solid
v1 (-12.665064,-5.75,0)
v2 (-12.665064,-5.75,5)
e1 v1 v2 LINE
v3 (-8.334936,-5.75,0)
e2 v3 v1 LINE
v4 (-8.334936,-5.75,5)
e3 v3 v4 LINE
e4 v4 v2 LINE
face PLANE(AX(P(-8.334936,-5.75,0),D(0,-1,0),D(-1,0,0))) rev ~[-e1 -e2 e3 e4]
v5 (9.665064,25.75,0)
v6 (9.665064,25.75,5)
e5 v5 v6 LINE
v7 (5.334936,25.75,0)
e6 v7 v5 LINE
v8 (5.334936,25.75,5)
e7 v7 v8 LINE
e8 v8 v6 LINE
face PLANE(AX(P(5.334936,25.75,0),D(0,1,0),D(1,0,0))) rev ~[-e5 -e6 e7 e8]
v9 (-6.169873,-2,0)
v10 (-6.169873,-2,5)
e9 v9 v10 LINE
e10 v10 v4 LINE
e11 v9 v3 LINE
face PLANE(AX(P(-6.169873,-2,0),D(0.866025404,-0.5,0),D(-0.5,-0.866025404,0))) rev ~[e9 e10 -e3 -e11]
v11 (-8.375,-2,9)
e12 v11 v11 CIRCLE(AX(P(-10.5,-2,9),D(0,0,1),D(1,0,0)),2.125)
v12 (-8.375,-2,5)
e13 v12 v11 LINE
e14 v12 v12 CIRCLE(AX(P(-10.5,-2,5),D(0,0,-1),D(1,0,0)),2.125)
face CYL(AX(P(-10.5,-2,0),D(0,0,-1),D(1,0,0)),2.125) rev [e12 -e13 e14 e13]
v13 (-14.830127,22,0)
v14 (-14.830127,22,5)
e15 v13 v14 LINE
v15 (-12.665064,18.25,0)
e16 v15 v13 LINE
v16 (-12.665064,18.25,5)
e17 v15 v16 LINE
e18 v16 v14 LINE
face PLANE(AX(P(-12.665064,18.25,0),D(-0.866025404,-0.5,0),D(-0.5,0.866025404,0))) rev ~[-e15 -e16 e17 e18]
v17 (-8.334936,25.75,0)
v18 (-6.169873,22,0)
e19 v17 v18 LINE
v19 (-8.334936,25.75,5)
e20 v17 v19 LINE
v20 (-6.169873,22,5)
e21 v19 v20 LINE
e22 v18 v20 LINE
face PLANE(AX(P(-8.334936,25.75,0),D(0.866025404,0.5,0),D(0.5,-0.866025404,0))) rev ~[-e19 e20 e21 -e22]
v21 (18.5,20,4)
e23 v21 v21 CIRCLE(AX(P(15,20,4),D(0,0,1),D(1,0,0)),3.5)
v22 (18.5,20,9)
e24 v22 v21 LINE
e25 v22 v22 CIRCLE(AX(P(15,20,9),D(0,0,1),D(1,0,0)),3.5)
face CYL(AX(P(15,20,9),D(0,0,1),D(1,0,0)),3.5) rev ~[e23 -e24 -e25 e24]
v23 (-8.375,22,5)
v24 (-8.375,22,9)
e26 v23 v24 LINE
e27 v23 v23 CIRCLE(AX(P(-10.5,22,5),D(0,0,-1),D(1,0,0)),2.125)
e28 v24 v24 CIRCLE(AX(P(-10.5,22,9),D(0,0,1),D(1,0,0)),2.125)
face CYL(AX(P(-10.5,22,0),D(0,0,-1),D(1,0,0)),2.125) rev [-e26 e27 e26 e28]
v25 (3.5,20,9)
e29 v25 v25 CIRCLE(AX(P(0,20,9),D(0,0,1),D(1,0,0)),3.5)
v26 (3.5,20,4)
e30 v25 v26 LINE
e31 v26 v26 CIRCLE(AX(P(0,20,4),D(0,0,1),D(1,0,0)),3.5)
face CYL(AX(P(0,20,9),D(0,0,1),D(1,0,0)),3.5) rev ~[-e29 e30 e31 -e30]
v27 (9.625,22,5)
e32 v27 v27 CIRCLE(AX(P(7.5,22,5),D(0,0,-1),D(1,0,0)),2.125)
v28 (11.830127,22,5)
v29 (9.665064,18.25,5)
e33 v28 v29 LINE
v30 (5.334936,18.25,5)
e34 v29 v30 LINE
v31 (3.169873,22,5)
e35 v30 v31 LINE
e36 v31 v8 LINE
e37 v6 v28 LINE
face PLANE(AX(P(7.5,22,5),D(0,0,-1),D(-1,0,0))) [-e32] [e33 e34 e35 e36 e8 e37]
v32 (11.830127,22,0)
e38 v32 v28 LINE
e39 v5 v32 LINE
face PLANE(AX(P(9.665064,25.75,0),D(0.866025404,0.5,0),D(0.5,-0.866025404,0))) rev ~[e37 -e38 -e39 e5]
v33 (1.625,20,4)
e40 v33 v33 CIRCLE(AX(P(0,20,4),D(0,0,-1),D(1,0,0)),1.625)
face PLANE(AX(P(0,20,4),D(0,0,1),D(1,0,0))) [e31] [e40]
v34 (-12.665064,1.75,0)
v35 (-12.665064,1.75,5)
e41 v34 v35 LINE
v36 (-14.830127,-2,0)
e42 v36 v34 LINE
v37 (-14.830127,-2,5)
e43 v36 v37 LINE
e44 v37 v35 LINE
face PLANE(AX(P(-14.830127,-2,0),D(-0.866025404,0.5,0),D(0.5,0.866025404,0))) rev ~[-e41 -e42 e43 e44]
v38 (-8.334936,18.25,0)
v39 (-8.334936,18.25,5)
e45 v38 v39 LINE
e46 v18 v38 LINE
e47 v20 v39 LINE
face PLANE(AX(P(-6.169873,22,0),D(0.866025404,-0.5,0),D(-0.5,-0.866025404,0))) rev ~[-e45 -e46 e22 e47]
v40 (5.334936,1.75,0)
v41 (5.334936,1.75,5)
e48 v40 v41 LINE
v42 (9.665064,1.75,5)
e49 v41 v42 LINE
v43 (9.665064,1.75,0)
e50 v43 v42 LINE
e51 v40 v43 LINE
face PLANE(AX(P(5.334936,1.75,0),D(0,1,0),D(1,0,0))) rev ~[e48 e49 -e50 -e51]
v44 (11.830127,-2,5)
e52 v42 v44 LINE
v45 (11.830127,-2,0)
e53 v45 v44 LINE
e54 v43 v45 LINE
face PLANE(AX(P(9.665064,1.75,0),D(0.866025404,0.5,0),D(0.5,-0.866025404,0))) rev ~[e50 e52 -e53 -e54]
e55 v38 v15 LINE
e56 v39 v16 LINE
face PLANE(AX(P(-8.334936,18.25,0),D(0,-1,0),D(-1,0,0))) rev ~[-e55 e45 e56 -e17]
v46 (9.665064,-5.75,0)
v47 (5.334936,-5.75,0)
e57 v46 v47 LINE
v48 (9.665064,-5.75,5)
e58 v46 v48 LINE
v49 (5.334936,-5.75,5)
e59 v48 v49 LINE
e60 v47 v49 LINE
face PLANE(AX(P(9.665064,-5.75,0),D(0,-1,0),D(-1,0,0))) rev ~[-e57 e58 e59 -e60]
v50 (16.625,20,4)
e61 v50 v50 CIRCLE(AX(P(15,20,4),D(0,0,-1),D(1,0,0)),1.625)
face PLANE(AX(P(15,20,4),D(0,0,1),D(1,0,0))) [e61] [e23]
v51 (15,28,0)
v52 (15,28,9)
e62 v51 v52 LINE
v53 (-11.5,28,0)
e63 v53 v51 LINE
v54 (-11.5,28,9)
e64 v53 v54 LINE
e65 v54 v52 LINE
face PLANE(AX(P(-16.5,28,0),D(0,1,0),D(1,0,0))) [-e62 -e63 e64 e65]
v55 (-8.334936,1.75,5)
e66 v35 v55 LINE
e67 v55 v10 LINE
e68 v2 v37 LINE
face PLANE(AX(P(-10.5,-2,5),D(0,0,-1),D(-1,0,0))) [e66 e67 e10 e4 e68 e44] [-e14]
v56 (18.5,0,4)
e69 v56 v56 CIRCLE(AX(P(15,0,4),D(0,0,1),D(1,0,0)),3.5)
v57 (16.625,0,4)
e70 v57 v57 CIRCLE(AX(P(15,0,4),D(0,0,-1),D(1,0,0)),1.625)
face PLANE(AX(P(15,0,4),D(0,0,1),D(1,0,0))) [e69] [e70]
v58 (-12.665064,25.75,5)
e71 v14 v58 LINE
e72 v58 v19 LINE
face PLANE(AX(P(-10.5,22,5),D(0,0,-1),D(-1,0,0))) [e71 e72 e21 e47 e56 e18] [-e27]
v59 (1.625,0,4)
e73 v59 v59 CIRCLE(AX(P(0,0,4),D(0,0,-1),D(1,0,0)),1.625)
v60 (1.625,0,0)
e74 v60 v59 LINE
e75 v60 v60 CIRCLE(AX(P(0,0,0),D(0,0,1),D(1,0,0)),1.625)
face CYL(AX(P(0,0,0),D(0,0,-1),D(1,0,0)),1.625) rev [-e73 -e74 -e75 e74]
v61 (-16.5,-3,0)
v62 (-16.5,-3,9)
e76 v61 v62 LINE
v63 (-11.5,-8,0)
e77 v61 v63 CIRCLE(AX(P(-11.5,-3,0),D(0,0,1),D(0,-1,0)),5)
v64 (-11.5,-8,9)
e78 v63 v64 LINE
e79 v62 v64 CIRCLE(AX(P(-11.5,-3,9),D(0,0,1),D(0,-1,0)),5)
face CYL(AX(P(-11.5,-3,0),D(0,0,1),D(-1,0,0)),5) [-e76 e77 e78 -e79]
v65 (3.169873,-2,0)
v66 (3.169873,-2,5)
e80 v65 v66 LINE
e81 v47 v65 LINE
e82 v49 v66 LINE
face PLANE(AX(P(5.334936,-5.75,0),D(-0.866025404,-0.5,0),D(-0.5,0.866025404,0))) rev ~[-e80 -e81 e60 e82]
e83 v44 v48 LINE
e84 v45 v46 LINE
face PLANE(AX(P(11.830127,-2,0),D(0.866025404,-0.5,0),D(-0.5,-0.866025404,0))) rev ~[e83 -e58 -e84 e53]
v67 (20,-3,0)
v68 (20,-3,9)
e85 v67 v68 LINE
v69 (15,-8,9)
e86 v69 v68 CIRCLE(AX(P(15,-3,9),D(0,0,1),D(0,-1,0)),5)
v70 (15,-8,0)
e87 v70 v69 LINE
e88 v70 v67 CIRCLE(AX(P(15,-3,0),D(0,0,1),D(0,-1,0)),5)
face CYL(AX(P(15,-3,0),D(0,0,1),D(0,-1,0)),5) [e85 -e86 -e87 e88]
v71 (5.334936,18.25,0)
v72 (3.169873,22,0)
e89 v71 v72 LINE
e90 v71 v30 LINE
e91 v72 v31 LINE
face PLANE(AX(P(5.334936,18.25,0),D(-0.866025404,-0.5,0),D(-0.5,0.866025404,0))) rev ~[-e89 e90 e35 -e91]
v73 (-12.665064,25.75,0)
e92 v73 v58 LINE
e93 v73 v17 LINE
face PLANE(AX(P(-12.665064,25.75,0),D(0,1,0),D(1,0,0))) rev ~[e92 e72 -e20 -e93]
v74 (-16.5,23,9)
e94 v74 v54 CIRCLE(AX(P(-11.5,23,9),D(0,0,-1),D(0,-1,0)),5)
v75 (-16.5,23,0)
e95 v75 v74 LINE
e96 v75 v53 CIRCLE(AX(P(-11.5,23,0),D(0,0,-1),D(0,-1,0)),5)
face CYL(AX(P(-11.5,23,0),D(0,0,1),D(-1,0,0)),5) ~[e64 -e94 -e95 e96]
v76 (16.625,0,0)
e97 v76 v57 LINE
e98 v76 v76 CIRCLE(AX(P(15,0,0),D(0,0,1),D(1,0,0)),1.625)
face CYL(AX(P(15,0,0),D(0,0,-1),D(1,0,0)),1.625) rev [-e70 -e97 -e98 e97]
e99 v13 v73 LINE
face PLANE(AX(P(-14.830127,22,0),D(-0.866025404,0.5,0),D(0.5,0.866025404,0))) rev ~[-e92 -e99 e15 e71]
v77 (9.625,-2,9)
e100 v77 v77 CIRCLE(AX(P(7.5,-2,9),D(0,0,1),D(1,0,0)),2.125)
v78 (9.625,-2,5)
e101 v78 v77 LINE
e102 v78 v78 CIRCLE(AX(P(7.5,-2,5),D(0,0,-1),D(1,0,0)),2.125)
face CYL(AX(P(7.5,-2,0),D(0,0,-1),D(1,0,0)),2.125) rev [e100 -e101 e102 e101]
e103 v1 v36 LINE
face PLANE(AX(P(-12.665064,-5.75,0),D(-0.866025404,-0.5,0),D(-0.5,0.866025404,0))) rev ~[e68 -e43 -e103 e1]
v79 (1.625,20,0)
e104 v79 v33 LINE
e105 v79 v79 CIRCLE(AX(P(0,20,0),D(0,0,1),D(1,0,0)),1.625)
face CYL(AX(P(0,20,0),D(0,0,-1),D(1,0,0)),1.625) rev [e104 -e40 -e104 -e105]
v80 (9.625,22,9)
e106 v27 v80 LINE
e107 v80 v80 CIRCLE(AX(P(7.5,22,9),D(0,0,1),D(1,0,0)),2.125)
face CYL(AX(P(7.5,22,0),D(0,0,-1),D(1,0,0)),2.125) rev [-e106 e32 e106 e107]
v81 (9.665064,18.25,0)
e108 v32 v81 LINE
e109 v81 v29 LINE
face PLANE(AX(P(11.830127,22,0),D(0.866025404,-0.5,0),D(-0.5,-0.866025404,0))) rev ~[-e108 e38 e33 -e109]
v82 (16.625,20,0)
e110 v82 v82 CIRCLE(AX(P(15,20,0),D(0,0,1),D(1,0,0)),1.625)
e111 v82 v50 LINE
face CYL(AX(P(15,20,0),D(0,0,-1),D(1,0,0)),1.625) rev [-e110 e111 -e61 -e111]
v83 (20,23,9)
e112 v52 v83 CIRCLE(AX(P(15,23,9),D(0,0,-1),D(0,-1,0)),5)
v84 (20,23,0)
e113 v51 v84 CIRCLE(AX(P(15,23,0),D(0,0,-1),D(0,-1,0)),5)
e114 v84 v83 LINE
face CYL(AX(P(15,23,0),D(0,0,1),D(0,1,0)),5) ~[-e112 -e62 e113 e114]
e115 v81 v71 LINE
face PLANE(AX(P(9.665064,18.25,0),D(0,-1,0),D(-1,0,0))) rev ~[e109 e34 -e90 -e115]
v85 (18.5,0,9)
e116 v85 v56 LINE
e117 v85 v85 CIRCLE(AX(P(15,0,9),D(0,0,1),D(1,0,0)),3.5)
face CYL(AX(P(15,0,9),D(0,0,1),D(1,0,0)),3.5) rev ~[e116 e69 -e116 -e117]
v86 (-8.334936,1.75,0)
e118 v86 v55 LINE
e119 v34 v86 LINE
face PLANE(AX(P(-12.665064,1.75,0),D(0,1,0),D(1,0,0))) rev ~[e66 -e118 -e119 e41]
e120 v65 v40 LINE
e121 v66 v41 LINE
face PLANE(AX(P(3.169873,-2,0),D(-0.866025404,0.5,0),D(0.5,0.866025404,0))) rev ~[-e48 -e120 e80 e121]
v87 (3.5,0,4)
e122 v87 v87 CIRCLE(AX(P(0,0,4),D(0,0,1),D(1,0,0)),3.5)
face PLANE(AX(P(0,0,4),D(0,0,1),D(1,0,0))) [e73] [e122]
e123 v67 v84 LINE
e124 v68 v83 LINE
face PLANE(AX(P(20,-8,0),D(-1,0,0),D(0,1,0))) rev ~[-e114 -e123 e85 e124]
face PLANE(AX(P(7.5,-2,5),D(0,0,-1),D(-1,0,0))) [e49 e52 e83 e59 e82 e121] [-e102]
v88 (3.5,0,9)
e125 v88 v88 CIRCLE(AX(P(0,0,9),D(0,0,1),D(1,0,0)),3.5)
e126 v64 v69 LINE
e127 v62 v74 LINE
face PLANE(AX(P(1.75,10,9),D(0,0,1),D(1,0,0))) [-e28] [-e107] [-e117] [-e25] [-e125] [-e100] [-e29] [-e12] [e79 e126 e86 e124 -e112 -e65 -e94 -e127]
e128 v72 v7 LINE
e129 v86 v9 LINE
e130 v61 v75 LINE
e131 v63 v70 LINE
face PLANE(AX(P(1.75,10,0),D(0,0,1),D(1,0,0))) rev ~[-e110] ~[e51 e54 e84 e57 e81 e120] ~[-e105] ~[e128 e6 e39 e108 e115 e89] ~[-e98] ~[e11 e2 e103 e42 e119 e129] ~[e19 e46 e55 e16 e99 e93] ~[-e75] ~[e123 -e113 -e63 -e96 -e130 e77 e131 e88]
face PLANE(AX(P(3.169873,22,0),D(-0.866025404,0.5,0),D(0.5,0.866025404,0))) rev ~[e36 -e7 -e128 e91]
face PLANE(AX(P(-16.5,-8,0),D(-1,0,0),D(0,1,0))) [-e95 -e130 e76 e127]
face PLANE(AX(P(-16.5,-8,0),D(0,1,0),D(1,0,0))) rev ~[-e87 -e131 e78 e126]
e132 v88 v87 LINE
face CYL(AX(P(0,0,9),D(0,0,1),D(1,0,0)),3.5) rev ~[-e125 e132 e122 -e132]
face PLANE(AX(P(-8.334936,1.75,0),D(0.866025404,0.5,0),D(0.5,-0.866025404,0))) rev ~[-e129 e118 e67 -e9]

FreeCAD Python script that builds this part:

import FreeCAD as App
import Part
import Sketcher

V = App.Vector
Q = App.Units.Quantity


def edges_at(feature, points):
    """Names of the edges that pass closest to the given points."""
    edges = feature.Shape.Edges
    near = lambda p: min(range(len(edges)), key=lambda i: edges[i].distToShape(Part.Vertex(*p))[0])
    return sorted({f"Edge{near(p) + 1}" for p in points})

doc = App.newDocument("Part")
body = doc.addObject("PartDesign::Body", "Body")

sketch1 = body.newObject("Sketcher::SketchObject", "Sketch")
sketch1.AttachmentSupport = (doc.getObject("XY_Plane"), [""])
sketch1.MapMode = "FlatFace"
sketch1.addGeometry(Part.LineSegment(V(-16.5, 28, 0), V(-16.5, -8, 0)), False)
sketch1.addGeometry(Part.LineSegment(V(-16.5, -8, 0), V(20, -8, 0)), False)
sketch1.addGeometry(Part.LineSegment(V(20, -8, 0), V(20, 28, 0)), False)
sketch1.addGeometry(Part.LineSegment(V(20, 28, 0), V(-16.5, 28, 0)), False)
sketch1.addGeometry(Part.Circle(V(-10.5, -2, 0), V(0, 0, 1), 2.1), False)
sketch1.addGeometry(Part.Circle(V(0, 0, 0), V(0, 0, 1), 1.6), False)
sketch1.addGeometry(Part.Circle(V(7.5, -2, 0), V(0, 0, 1), 2.1), False)
sketch1.addGeometry(Part.Circle(V(15, 0, 0), V(0, 0, 1), 1.6), False)
sketch1.addGeometry(Part.Circle(V(-10.5, 22, 0), V(0, 0, 1), 2.1), False)
sketch1.addGeometry(Part.Circle(V(0, 20, 0), V(0, 0, 1), 1.6), False)
sketch1.addGeometry(Part.Circle(V(7.5, 22, 0), V(0, 0, 1), 2.1), False)
sketch1.addGeometry(Part.Circle(V(15, 20, 0), V(0, 0, 1), 1.6), False)
sketch1.addConstraint(Sketcher.Constraint("Coincident", 0, 2, 1, 1))
sketch1.addConstraint(Sketcher.Constraint("Coincident", 1, 2, 2, 1))
sketch1.addConstraint(Sketcher.Constraint("Coincident", 2, 2, 3, 1))
sketch1.addConstraint(Sketcher.Constraint("Coincident", 3, 2, 0, 1))
sketch1.addConstraint(Sketcher.Constraint("Vertical", 0))
sketch1.addConstraint(Sketcher.Constraint("Horizontal", 1))
sketch1.addConstraint(Sketcher.Constraint("Vertical", 2))
sketch1.addConstraint(Sketcher.Constraint("Horizontal", 3))
sketch1.addConstraint(Sketcher.Constraint("Coincident", 5, 3, -1, 1))
sketch1.addConstraint(Sketcher.Constraint("Equal", 4, 6))
sketch1.addConstraint(Sketcher.Constraint("Equal", 5, 7))
sketch1.addConstraint(Sketcher.Constraint("Equal", 6, 8))
sketch1.addConstraint(Sketcher.Constraint("Equal", 7, 9))
sketch1.addConstraint(Sketcher.Constraint("Equal", 8, 10))
sketch1.addConstraint(Sketcher.Constraint("Equal", 9, 11))
sketch1.addConstraint(Sketcher.Constraint("PointOnObject", 7, 3, -1))
sketch1.addConstraint(Sketcher.Constraint("PointOnObject", 9, 3, -2))
sketch1.addConstraint(Sketcher.Constraint("Horizontal", 4, 3, 6, 3))
sketch1.addConstraint(Sketcher.Constraint("Horizontal", 8, 3, 10, 3))
sketch1.addConstraint(Sketcher.Constraint("Horizontal", 9, 3, 11, 3))
sketch1.addConstraint(Sketcher.Constraint("Vertical", 4, 3, 8, 3))
sketch1.addConstraint(Sketcher.Constraint("Vertical", 6, 3, 10, 3))
sketch1.addConstraint(Sketcher.Constraint("Vertical", 7, 3, 11, 3))
sketch1.addConstraint(Sketcher.Constraint("Diameter", 4, 4.25))
sketch1.addConstraint(Sketcher.Constraint("Diameter", 5, 3.25))
sketch1.addConstraint(Sketcher.Constraint("DistanceY", 0, 2, 0, 1, 36.0))
sketch1.addConstraint(Sketcher.Constraint("DistanceX", 1, 1, 1, 2, 36.5))
sketch1.addConstraint(Sketcher.Constraint("DistanceY", 4, 3, -1, 1, 2.0))
sketch1.addConstraint(Sketcher.Constraint("DistanceX", -1, 1, 7, 3, 15.0))
sketch1.addConstraint(Sketcher.Constraint("DistanceY", -1, 1, 8, 3, 22.0))
sketch1.addConstraint(Sketcher.Constraint("DistanceY", -1, 1, 9, 3, 20.0))
sketch1.addConstraint(Sketcher.Constraint("DistanceY", 0, 2, -1, 1, 8.0))
sketch1.addConstraint(Sketcher.Constraint("DistanceX", -1, 1, 1, 2, 20.0))
sketch1.addConstraint(Sketcher.Constraint("DistanceX", 4, 3, 6, 3, 18.0))
sketch1.addConstraint(Sketcher.Constraint("DistanceX", 0, 2, 4, 3, 6.0))
pad1 = body.newObject("PartDesign::Pad", "Pad")
pad1.Profile = sketch1
pad1.Length = 9

sketch2 = body.newObject("Sketcher::SketchObject", "Sketch001")
sketch2.AttachmentSupport = (doc.getObject("XY_Plane"), [""])
sketch2.MapMode = "FlatFace"
sketch2.AttachmentOffset = App.Placement(V(0, 0, 9), App.Rotation())
sketch2.addGeometry(Part.Circle(V(0, 20, 0), V(0, 0, 1), 3.5), False)
sketch2.addGeometry(Part.Circle(V(0, 0, 0), V(0, 0, 1), 3.5), False)
sketch2.addGeometry(Part.Circle(V(15, 0, 0), V(0, 0, 1), 3.5), False)
sketch2.addGeometry(Part.Circle(V(15, 20, 0), V(0, 0, 1), 3.5), False)
sketch2.addConstraint(Sketcher.Constraint("Coincident", 1, 3, -1, 1))
sketch2.addConstraint(Sketcher.Constraint("Equal", 0, 1))
sketch2.addConstraint(Sketcher.Constraint("Equal", 1, 2))
sketch2.addConstraint(Sketcher.Constraint("Equal", 2, 3))
sketch2.addConstraint(Sketcher.Constraint("PointOnObject", 0, 3, -2))
sketch2.addConstraint(Sketcher.Constraint("PointOnObject", 2, 3, -1))
sketch2.addConstraint(Sketcher.Constraint("Horizontal", 0, 3, 3, 3))
sketch2.addConstraint(Sketcher.Constraint("Vertical", 2, 3, 3, 3))
sketch2.addConstraint(Sketcher.Constraint("Diameter", 0, 7.0))
sketch2.addConstraint(Sketcher.Constraint("DistanceY", -1, 1, 0, 3, 20.0))
sketch2.addConstraint(Sketcher.Constraint("DistanceX", -1, 1, 2, 3, 15.0))
pocket1 = body.newObject("PartDesign::Pocket", "Pocket")
pocket1.Profile = sketch2
pocket1.Length = 5

sketch3 = body.newObject("Sketcher::SketchObject", "Sketch002")
sketch3.AttachmentSupport = (doc.getObject("XY_Plane"), [""])
sketch3.MapMode = "FlatFace"
sketch3.addGeometry(Part.LineSegment(V(5.3, 18.2, 0), V(3.2, 22, 0)), False)
sketch3.addGeometry(Part.LineSegment(V(3.2, 22, 0), V(5.3, 25.8, 0)), False)
sketch3.addGeometry(Part.LineSegment(V(5.3, 25.8, 0), V(9.7, 25.8, 0)), False)
sketch3.addGeometry(Part.LineSegment(V(9.7, 25.8, 0), V(11.8, 22, 0)), False)
sketch3.addGeometry(Part.LineSegment(V(11.8, 22, 0), V(9.7, 18.2, 0)), False)
sketch3.addGeometry(Part.LineSegment(V(9.7, 18.2, 0), V(5.3, 18.2, 0)), False)
sketch3.addGeometry(Part.LineSegment(V(-12.7, 18.2, 0), V(-14.8, 22, 0)), False)
sketch3.addGeometry(Part.LineSegment(V(-14.8, 22, 0), V(-12.7, 25.8, 0)), False)
sketch3.addGeometry(Part.LineSegment(V(-12.7, 25.8, 0), V(-8.3, 25.8, 0)), False)
sketch3.addGeometry(Part.LineSegment(V(-8.3, 25.8, 0), V(-6.2, 22, 0)), False)
sketch3.addGeometry(Part.LineSegment(V(-6.2, 22, 0), V(-8.3, 18.2, 0)), False)
sketch3.addGeometry(Part.LineSegment(V(-8.3, 18.2, 0), V(-12.7, 18.2, 0)), False)
sketch3.addGeometry(Part.LineSegment(V(-12.7, -5.8, 0), V(-14.8, -2, 0)), False)
sketch3.addGeometry(Part.LineSegment(V(-14.8, -2, 0), V(-12.7, 1.8, 0)), False)
sketch3.addGeometry(Part.LineSegment(V(-12.7, 1.8, 0), V(-8.3, 1.8, 0)), False)
sketch3.addGeometry(Part.LineSegment(V(-8.3, 1.8, 0), V(-6.2, -2, 0)), False)
sketch3.addGeometry(Part.LineSegment(V(-6.2, -2, 0), V(-8.3, -5.8, 0)), False)
sketch3.addGeometry(Part.LineSegment(V(-8.3, -5.8, 0), V(-12.7, -5.8, 0)), False)
sketch3.addGeometry(Part.LineSegment(V(9.7, -5.8, 0), V(5.3, -5.8, 0)), False)
sketch3.addGeometry(Part.LineSegment(V(5.3, -5.8, 0), V(3.2, -2, 0)), False)
sketch3.addGeometry(Part.LineSegment(V(3.2, -2, 0), V(5.3, 1.8, 0)), False)
sketch3.addGeometry(Part.LineSegment(V(5.3, 1.8, 0), V(9.7, 1.8, 0)), False)
sketch3.addGeometry(Part.LineSegment(V(9.7, 1.8, 0), V(11.8, -2, 0)), False)
sketch3.addGeometry(Part.LineSegment(V(11.8, -2, 0), V(9.7, -5.8, 0)), False)
sketch3.addConstraint(Sketcher.Constraint("Coincident", 0, 2, 1, 1))
sketch3.addConstraint(Sketcher.Constraint("Coincident", 1, 2, 2, 1))
sketch3.addConstraint(Sketcher.Constraint("Coincident", 2, 2, 3, 1))
sketch3.addConstraint(Sketcher.Constraint("Coincident", 3, 2, 4, 1))
sketch3.addConstraint(Sketcher.Constraint("Coincident", 4, 2, 5, 1))
sketch3.addConstraint(Sketcher.Constraint("Coincident", 5, 2, 0, 1))
sketch3.addConstraint(Sketcher.Constraint("Coincident", 6, 2, 7, 1))
sketch3.addConstraint(Sketcher.Constraint("Coincident", 7, 2, 8, 1))
sketch3.addConstraint(Sketcher.Constraint("Coincident", 8, 2, 9, 1))
sketch3.addConstraint(Sketcher.Constraint("Coincident", 9, 2, 10, 1))
sketch3.addConstraint(Sketcher.Constraint("Coincident", 10, 2, 11, 1))
sketch3.addConstraint(Sketcher.Constraint("Coincident", 11, 2, 6, 1))
sketch3.addConstraint(Sketcher.Constraint("Coincident", 12, 2, 13, 1))
sketch3.addConstraint(Sketcher.Constraint("Coincident", 13, 2, 14, 1))
sketch3.addConstraint(Sketcher.Constraint("Coincident", 14, 2, 15, 1))
sketch3.addConstraint(Sketcher.Constraint("Coincident", 15, 2, 16, 1))
sketch3.addConstraint(Sketcher.Constraint("Coincident", 16, 2, 17, 1))
sketch3.addConstraint(Sketcher.Constraint("Coincident", 17, 2, 12, 1))
sketch3.addConstraint(Sketcher.Constraint("Coincident", 18, 2, 19, 1))
sketch3.addConstraint(Sketcher.Constraint("Coincident", 19, 2, 20, 1))
sketch3.addConstraint(Sketcher.Constraint("Coincident", 20, 2, 21, 1))
sketch3.addConstraint(Sketcher.Constraint("Coincident", 21, 2, 22, 1))
sketch3.addConstraint(Sketcher.Constraint("Coincident", 22, 2, 23, 1))
sketch3.addConstraint(Sketcher.Constraint("Coincident", 23, 2, 18, 1))
sketch3.addConstraint(Sketcher.Constraint("Horizontal", 2))
sketch3.addConstraint(Sketcher.Constraint("Horizontal", 5))
sketch3.addConstraint(Sketcher.Constraint("Horizontal", 8))
sketch3.addConstraint(Sketcher.Constraint("Horizontal", 11))
sketch3.addConstraint(Sketcher.Constraint("Horizontal", 14))
sketch3.addConstraint(Sketcher.Constraint("Horizontal", 17))
sketch3.addConstraint(Sketcher.Constraint("Horizontal", 18))
sketch3.addConstraint(Sketcher.Constraint("Horizontal", 21))
sketch3.addConstraint(Sketcher.Constraint("Parallel", 0, 3))
sketch3.addConstraint(Sketcher.Constraint("Parallel", 1, 4))
sketch3.addConstraint(Sketcher.Constraint("Parallel", 3, 6))
sketch3.addConstraint(Sketcher.Constraint("Parallel", 4, 7))
sketch3.addConstraint(Sketcher.Constraint("Parallel", 6, 9))
sketch3.addConstraint(Sketcher.Constraint("Parallel", 7, 10))
sketch3.addConstraint(Sketcher.Constraint("Parallel", 9, 12))
sketch3.addConstraint(Sketcher.Constraint("Parallel", 10, 13))
sketch3.addConstraint(Sketcher.Constraint("Parallel", 12, 15))
sketch3.addConstraint(Sketcher.Constraint("Parallel", 13, 16))
sketch3.addConstraint(Sketcher.Constraint("Parallel", 15, 19))
sketch3.addConstraint(Sketcher.Constraint("Parallel", 16, 20))
sketch3.addConstraint(Sketcher.Constraint("Parallel", 19, 22))
sketch3.addConstraint(Sketcher.Constraint("Parallel", 20, 23))
sketch3.addConstraint(Sketcher.Constraint("Horizontal", 0, 2, 3, 2))
sketch3.addConstraint(Sketcher.Constraint("Horizontal", 3, 2, 6, 2))
sketch3.addConstraint(Sketcher.Constraint("Horizontal", 2, 2, 7, 2))
sketch3.addConstraint(Sketcher.Constraint("Horizontal", 6, 2, 9, 2))
sketch3.addConstraint(Sketcher.Constraint("Horizontal", 5, 2, 10, 2))
sketch3.addConstraint(Sketcher.Constraint("Horizontal", 12, 2, 15, 2))
sketch3.addConstraint(Sketcher.Constraint("Horizontal", 17, 2, 18, 2))
sketch3.addConstraint(Sketcher.Constraint("Horizontal", 15, 2, 19, 2))
sketch3.addConstraint(Sketcher.Constraint("Horizontal", 14, 2, 20, 2))
sketch3.addConstraint(Sketcher.Constraint("Horizontal", 19, 2, 22, 2))
sketch3.addConstraint(Sketcher.Constraint("Vertical", 2, 2, 4, 2))
sketch3.addConstraint(Sketcher.Constraint("Vertical", 1, 2, 5, 2))
sketch3.addConstraint(Sketcher.Constraint("Vertical", 6, 2, 12, 2))
sketch3.addConstraint(Sketcher.Constraint("Vertical", 11, 2, 13, 2))
sketch3.addConstraint(Sketcher.Constraint("Vertical", 10, 2, 14, 2))
sketch3.addConstraint(Sketcher.Constraint("Vertical", 14, 2, 16, 2))
sketch3.addConstraint(Sketcher.Constraint("Vertical", 5, 2, 18, 2))
sketch3.addConstraint(Sketcher.Constraint("Vertical", 4, 2, 21, 2))
sketch3.addConstraint(Sketcher.Constraint("Equal", 5, 8))
sketch3.addConstraint(Sketcher.Constraint("Angle", 0, Q("120 deg")))
sketch3.addConstraint(Sketcher.Constraint("DistanceY", -1, 1, 0, 2, 22.0))
sketch3.addConstraint(Sketcher.Constraint("DistanceY", 12, 2, -1, 1, 2.0))
sketch3.addConstraint(Sketcher.Constraint("DistanceX", 6, 2, 0, 2, 18.0))
sketch3.addConstraint(Sketcher.Constraint("DistanceY", 4, 2, 2, 2, 7.5))
sketch3.addConstraint(Sketcher.Constraint("DistanceX", 2, 1, 2, 2, 4.330127))
sketch3.addConstraint(Sketcher.Constraint("DistanceX", -1, 1, 0, 2, 3.169873))
pocket2 = body.newObject("PartDesign::Pocket", "Pocket001")
pocket2.Profile = sketch3
pocket2.Length = 5
pocket2.Reversed = True
doc.recompute()

fillet = body.newObject("PartDesign::Fillet", "Fillet")
fillet.Base = (pocket2, edges_at(pocket2, [
    (-16.5, 28, 4.5),
    (20, 28, 4.5),
    (20, -8, 4.5),
    (-16.5, -8, 4.5),
]))
fillet.Radius = 5

doc.recompute()
